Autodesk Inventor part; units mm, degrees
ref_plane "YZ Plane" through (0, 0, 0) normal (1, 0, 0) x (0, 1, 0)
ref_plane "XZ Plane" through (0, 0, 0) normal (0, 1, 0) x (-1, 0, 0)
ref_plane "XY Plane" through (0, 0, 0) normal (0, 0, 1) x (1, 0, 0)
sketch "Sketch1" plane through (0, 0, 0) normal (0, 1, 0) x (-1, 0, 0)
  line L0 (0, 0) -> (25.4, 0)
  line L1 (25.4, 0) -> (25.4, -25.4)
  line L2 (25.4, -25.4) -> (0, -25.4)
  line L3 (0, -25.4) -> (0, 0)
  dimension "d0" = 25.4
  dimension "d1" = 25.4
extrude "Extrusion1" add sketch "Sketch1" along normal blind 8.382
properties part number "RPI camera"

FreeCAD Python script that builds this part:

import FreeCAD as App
import Part
import Sketcher

V = App.Vector
Q = App.Units.Quantity

doc = App.newDocument("Part")
params = doc.addObject("Spreadsheet::Sheet", "Params")
for row, (alias, value) in enumerate([
    ("sketch1_width", "1 in"),
    ("pad1_length", "0.33 in"),
], start=1):
    params.set(f"A{row}", alias)
    params.set(f"B{row}", "=" + value)
    params.setAlias(f"B{row}", alias)

body = doc.addObject("PartDesign::Body", "Body")

# Sketch on XZ plane
sketch1 = doc.addObject("Sketcher::SketchObject", "Sketch")
body.addObject(sketch1)
sketch1.AttachmentSupport = (doc.XZ_Plane, [""])
sketch1.MapMode = "FlatFace"
sketch1.addGeometry([
    Part.LineSegment(V(-25.4, 0, 0), V(0, 0, 0)),
    Part.LineSegment(V(0, 0, 0), V(0, -25.4, 0)),
    Part.LineSegment(V(0, -25.4, 0), V(-25.4, -25.4, 0)),
    Part.LineSegment(V(-25.4, -25.4, 0), V(-25.4, 0, 0)),
], False)
sketch1.addConstraint([
    Sketcher.Constraint("Coincident", 0, 2, 1, 1),
    Sketcher.Constraint("Coincident", 1, 2, 2, 1),
    Sketcher.Constraint("Coincident", 2, 2, 3, 1),
    Sketcher.Constraint("Coincident", 3, 2, 0, 1),
    Sketcher.Constraint("Horizontal", 0),
    Sketcher.Constraint("Vertical", 1),
    Sketcher.Constraint("Horizontal", 2),
    Sketcher.Constraint("Vertical", 3),
    Sketcher.Constraint("Coincident", 0, 2, -1, 1),
    Sketcher.Constraint("Equal", 2, 1),
    Sketcher.Constraint("DistanceX", 0, 1, 0, 2, Q("1 in")),
])
sketch1.setExpression("Constraints[10]", "Params.sketch1_width")
pad1 = doc.addObject("PartDesign::Pad", "Pad")
body.addObject(pad1)
pad1.Profile = sketch1
pad1.setExpression("Length", "Params.pad1_length")
pad1.Reversed = True

doc.recompute()
